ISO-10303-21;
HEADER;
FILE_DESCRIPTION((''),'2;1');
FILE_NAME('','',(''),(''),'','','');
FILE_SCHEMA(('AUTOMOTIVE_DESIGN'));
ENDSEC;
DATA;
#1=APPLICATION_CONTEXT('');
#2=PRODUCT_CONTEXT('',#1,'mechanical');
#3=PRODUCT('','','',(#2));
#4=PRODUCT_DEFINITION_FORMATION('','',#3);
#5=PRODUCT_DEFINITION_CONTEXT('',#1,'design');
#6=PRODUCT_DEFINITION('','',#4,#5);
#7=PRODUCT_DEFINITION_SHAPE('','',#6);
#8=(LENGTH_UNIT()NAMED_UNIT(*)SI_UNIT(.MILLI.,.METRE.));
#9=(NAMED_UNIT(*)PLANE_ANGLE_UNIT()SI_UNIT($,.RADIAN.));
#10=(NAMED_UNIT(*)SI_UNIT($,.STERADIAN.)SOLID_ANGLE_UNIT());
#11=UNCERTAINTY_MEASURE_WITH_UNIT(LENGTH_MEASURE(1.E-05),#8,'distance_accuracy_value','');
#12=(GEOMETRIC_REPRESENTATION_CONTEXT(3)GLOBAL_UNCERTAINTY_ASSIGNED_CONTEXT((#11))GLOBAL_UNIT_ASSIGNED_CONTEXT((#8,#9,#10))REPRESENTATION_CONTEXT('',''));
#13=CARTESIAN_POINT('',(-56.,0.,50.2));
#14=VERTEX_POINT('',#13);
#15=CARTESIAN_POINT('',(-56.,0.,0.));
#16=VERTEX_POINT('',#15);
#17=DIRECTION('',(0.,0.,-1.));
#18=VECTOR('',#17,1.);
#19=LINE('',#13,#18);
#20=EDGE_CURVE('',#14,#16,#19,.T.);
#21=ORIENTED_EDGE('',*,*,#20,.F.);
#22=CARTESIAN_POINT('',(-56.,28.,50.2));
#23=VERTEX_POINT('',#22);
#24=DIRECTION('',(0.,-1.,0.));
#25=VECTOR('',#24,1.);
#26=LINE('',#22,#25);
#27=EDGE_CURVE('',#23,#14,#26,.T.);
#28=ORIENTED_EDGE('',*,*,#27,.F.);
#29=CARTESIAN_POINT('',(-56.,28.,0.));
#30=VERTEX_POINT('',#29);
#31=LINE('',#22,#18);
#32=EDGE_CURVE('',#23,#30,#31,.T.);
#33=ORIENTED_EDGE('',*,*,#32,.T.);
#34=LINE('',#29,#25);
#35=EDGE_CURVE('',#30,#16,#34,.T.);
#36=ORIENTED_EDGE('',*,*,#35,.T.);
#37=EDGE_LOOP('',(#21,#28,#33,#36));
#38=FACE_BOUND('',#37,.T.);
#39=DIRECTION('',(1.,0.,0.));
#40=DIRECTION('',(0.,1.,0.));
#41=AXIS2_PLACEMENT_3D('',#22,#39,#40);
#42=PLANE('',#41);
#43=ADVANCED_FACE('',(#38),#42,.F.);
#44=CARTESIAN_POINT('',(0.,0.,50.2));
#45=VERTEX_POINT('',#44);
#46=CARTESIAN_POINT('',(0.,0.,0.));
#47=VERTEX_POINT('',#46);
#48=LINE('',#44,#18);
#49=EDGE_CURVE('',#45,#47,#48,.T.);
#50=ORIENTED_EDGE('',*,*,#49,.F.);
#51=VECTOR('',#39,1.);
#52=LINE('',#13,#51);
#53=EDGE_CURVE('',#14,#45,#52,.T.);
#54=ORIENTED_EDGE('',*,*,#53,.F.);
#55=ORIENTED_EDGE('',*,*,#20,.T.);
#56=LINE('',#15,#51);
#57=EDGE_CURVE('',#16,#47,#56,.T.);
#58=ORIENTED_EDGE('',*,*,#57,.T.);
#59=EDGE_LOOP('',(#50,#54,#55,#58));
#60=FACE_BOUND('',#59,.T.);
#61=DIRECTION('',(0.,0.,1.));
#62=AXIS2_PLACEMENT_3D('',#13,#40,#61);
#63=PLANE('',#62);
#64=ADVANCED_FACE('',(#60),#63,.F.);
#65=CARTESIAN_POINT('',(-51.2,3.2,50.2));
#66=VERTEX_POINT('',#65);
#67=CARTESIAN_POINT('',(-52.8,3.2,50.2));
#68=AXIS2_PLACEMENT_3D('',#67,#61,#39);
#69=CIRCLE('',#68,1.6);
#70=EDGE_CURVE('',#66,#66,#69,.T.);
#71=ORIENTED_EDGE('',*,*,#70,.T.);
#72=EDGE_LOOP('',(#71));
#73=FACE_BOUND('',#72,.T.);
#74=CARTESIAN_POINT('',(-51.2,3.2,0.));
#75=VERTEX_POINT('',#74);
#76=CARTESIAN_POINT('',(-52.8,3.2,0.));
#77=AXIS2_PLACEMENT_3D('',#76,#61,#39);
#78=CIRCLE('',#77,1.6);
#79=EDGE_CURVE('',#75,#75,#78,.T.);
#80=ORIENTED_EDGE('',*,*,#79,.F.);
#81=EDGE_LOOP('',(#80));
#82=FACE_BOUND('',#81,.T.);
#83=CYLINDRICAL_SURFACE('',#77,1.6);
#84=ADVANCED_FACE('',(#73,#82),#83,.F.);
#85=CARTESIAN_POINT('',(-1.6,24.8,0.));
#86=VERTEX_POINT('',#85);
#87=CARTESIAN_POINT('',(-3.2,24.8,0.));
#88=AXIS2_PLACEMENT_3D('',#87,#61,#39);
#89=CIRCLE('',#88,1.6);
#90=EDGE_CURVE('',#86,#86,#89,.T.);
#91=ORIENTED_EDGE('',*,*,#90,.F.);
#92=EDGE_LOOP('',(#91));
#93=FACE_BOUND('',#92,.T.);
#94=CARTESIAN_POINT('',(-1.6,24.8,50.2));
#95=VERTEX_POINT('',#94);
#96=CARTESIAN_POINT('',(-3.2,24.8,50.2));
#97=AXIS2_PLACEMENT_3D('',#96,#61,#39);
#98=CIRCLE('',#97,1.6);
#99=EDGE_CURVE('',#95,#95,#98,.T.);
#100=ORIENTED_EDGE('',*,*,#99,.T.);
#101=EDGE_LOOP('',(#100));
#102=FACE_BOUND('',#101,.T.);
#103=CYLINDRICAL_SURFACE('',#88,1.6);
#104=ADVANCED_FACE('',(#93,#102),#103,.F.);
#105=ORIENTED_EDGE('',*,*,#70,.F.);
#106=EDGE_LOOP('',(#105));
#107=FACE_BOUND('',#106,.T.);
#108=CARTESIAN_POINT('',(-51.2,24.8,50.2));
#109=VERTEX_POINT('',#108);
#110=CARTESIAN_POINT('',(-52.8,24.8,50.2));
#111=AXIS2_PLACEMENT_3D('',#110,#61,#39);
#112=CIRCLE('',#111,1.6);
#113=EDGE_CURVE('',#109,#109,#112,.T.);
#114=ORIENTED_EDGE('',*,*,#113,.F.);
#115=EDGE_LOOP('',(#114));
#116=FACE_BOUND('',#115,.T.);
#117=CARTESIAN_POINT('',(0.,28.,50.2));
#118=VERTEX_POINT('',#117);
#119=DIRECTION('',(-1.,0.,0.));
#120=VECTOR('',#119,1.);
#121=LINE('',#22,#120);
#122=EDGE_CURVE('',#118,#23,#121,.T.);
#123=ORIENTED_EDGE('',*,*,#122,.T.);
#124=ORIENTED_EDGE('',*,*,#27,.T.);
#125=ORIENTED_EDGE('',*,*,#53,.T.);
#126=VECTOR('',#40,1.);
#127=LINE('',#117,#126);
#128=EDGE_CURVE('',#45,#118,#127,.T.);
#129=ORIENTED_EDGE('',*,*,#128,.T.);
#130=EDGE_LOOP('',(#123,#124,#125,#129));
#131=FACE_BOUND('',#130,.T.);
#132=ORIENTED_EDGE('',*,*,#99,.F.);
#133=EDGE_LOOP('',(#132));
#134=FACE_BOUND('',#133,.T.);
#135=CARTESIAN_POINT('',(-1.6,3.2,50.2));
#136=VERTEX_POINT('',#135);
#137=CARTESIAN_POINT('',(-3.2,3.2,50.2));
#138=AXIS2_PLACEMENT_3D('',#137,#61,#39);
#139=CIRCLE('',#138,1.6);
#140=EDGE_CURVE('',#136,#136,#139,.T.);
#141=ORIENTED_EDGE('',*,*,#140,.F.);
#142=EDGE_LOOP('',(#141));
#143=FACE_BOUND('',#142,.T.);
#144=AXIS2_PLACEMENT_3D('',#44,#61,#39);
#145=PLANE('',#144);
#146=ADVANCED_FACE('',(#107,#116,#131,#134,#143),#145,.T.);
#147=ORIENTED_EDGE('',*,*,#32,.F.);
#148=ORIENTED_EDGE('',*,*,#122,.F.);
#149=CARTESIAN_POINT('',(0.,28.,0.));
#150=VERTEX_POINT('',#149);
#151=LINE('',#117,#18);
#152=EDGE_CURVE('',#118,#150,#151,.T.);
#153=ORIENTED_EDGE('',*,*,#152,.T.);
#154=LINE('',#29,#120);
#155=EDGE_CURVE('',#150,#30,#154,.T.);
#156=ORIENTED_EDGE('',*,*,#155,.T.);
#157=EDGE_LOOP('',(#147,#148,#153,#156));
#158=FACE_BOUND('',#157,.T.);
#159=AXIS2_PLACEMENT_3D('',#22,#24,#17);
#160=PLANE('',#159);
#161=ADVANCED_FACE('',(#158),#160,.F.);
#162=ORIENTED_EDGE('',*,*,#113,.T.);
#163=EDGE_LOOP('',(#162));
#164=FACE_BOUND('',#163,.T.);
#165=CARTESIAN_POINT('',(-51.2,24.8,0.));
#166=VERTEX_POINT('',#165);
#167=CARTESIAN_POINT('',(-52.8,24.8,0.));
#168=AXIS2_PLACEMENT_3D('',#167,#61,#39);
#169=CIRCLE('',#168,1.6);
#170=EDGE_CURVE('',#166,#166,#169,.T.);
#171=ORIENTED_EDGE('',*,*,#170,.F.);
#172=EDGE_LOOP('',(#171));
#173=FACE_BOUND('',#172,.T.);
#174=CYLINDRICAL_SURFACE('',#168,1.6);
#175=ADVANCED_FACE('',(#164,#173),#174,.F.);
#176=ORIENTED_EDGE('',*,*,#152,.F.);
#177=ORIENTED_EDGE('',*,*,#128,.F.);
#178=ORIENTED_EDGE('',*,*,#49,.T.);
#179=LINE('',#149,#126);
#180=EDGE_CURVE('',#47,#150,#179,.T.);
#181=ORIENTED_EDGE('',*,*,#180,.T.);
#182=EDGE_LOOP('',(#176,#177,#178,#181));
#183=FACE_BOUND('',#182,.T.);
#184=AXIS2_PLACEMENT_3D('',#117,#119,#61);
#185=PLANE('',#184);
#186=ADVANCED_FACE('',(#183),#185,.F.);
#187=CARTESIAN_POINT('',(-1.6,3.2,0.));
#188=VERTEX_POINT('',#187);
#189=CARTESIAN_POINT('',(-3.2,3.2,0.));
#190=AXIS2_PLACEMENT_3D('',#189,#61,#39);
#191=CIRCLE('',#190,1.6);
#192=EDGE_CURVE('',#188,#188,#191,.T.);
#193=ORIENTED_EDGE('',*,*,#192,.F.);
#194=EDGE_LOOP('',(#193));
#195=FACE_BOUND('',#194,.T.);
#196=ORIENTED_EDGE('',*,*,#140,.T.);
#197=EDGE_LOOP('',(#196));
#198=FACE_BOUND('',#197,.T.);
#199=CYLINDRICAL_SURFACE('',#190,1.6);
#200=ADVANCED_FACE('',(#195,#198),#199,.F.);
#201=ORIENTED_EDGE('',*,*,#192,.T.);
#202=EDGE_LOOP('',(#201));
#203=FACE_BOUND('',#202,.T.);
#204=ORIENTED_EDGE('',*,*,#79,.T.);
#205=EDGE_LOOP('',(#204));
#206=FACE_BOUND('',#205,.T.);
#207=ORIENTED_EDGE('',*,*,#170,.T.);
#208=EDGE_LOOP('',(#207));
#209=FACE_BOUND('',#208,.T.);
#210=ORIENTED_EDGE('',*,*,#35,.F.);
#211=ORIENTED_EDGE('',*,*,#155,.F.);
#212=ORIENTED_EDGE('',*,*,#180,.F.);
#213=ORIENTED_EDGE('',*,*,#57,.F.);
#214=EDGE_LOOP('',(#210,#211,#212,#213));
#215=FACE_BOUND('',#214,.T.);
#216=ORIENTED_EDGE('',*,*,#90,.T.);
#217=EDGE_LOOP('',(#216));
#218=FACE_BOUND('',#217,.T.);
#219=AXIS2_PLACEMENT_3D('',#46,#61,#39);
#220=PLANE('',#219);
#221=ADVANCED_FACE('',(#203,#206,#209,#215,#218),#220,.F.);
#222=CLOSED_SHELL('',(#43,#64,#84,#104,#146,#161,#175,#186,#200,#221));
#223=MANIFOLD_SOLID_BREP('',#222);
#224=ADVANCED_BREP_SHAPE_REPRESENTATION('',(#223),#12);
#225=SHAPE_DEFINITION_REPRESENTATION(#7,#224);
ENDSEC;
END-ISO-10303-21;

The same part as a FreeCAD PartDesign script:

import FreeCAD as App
import Part
import Sketcher


def add_polygon(sketch, points):
    """Adds a closed chain of lines whose ends are joined by coincident constraints."""
    first, n = sketch.GeometryCount, len(points)
    for a, b in zip(points, points[1:] + points[:1]):
        sketch.addGeometry(Part.LineSegment(App.Vector(*a, 0), App.Vector(*b, 0)), False)
    for i in range(n):
        sketch.addConstraint(Sketcher.Constraint("Coincident", first + i, 2, first + (i + 1) % n, 1))

doc = App.newDocument("Part")
params = doc.addObject("Spreadsheet::Sheet", "Params")
for row, (alias, value) in enumerate([
    ("sketch1_width", "56 mm"),
    ("sketch1_height", "28 mm"),
    ("pad1_length", "50.2 mm"),
    ("sketch2_diameter", "3.2 mm"),
    ("pocket1_length", "50.2 mm"),
], start=1):
    params.set(f"A{row}", alias)
    params.set(f"B{row}", "=" + value)
    params.setAlias(f"B{row}", alias)

body = doc.addObject("PartDesign::Body", "Body")

# Sketch on XY plane
sketch1 = body.newObject("Sketcher::SketchObject", "Sketch")
sketch1.AttachmentSupport = (doc.getObject("XY_Plane"), [""])
sketch1.MapMode = "FlatFace"
add_polygon(sketch1, [(-56, 28), (-56, 0), (0, 0), (0, 28)])  # lines 0-3
sketch1.addConstraint([
    Sketcher.Constraint("Vertical", 0),
    Sketcher.Constraint("Horizontal", 1),
    Sketcher.Constraint("Vertical", 2),
    Sketcher.Constraint("Horizontal", 3),
    Sketcher.Constraint("Coincident", 1, 2, -1, 1),
    Sketcher.Constraint("DistanceX", 1, 1, 1, 2, 56.0),
    Sketcher.Constraint("DistanceY", 0, 2, 0, 1, 28.0),
])
sketch1.setExpression("Constraints[9]", "Params.sketch1_width")
sketch1.setExpression("Constraints[10]", "Params.sketch1_height")
pad1 = body.newObject("PartDesign::Pad", "Pad")
pad1.Profile = sketch1
pad1.setExpression("Length", "Params.pad1_length")

# Sketch on XY plane
sketch2 = body.newObject("Sketcher::SketchObject", "Sketch001")
sketch2.AttachmentSupport = (doc.getObject("XY_Plane"), [""])
sketch2.MapMode = "FlatFace"
sketch2.AttachmentOffset = App.Placement(App.Vector(0, 0, 50.2), App.Rotation())
sketch2.addGeometry([
    Part.Circle(App.Vector(-52.8, 24.8, 0), App.Vector(0, 0, 1), 1.6),
    Part.Circle(App.Vector(-3.2, 3.2, 0), App.Vector(0, 0, 1), 1.6),
    Part.Circle(App.Vector(-52.8, 3.2, 0), App.Vector(0, 0, 1), 1.6),
    Part.Circle(App.Vector(-3.2, 24.8, 0), App.Vector(0, 0, 1), 1.6),
], False)
sketch2.addConstraint([
    Sketcher.Constraint("Equal", 0, 1),
    Sketcher.Constraint("Equal", 1, 2),
    Sketcher.Constraint("Equal", 2, 3),
    Sketcher.Constraint("Horizontal", 1, 3, 2, 3),
    Sketcher.Constraint("Horizontal", 0, 3, 3, 3),
    Sketcher.Constraint("Vertical", 0, 3, 2, 3),
    Sketcher.Constraint("Vertical", 1, 3, 3, 3),
    Sketcher.Constraint("Diameter", 0, 3.2),
    Sketcher.Constraint("DistanceX", 0, 3, -1, 1, 52.8),
    Sketcher.Constraint("DistanceY", -1, 1, 0, 3, 24.8),
    Sketcher.Constraint("DistanceX", 1, 3, -1, 1, 3.2),
    Sketcher.Constraint("DistanceY", -1, 1, 1, 3, 3.2),
])
sketch2.setExpression("Constraints[7]", "Params.sketch2_diameter")
pocket1 = body.newObject("PartDesign::Pocket", "Pocket")
pocket1.Profile = sketch2
pocket1.setExpression("Length", "Params.pocket1_length")

doc.recompute()
